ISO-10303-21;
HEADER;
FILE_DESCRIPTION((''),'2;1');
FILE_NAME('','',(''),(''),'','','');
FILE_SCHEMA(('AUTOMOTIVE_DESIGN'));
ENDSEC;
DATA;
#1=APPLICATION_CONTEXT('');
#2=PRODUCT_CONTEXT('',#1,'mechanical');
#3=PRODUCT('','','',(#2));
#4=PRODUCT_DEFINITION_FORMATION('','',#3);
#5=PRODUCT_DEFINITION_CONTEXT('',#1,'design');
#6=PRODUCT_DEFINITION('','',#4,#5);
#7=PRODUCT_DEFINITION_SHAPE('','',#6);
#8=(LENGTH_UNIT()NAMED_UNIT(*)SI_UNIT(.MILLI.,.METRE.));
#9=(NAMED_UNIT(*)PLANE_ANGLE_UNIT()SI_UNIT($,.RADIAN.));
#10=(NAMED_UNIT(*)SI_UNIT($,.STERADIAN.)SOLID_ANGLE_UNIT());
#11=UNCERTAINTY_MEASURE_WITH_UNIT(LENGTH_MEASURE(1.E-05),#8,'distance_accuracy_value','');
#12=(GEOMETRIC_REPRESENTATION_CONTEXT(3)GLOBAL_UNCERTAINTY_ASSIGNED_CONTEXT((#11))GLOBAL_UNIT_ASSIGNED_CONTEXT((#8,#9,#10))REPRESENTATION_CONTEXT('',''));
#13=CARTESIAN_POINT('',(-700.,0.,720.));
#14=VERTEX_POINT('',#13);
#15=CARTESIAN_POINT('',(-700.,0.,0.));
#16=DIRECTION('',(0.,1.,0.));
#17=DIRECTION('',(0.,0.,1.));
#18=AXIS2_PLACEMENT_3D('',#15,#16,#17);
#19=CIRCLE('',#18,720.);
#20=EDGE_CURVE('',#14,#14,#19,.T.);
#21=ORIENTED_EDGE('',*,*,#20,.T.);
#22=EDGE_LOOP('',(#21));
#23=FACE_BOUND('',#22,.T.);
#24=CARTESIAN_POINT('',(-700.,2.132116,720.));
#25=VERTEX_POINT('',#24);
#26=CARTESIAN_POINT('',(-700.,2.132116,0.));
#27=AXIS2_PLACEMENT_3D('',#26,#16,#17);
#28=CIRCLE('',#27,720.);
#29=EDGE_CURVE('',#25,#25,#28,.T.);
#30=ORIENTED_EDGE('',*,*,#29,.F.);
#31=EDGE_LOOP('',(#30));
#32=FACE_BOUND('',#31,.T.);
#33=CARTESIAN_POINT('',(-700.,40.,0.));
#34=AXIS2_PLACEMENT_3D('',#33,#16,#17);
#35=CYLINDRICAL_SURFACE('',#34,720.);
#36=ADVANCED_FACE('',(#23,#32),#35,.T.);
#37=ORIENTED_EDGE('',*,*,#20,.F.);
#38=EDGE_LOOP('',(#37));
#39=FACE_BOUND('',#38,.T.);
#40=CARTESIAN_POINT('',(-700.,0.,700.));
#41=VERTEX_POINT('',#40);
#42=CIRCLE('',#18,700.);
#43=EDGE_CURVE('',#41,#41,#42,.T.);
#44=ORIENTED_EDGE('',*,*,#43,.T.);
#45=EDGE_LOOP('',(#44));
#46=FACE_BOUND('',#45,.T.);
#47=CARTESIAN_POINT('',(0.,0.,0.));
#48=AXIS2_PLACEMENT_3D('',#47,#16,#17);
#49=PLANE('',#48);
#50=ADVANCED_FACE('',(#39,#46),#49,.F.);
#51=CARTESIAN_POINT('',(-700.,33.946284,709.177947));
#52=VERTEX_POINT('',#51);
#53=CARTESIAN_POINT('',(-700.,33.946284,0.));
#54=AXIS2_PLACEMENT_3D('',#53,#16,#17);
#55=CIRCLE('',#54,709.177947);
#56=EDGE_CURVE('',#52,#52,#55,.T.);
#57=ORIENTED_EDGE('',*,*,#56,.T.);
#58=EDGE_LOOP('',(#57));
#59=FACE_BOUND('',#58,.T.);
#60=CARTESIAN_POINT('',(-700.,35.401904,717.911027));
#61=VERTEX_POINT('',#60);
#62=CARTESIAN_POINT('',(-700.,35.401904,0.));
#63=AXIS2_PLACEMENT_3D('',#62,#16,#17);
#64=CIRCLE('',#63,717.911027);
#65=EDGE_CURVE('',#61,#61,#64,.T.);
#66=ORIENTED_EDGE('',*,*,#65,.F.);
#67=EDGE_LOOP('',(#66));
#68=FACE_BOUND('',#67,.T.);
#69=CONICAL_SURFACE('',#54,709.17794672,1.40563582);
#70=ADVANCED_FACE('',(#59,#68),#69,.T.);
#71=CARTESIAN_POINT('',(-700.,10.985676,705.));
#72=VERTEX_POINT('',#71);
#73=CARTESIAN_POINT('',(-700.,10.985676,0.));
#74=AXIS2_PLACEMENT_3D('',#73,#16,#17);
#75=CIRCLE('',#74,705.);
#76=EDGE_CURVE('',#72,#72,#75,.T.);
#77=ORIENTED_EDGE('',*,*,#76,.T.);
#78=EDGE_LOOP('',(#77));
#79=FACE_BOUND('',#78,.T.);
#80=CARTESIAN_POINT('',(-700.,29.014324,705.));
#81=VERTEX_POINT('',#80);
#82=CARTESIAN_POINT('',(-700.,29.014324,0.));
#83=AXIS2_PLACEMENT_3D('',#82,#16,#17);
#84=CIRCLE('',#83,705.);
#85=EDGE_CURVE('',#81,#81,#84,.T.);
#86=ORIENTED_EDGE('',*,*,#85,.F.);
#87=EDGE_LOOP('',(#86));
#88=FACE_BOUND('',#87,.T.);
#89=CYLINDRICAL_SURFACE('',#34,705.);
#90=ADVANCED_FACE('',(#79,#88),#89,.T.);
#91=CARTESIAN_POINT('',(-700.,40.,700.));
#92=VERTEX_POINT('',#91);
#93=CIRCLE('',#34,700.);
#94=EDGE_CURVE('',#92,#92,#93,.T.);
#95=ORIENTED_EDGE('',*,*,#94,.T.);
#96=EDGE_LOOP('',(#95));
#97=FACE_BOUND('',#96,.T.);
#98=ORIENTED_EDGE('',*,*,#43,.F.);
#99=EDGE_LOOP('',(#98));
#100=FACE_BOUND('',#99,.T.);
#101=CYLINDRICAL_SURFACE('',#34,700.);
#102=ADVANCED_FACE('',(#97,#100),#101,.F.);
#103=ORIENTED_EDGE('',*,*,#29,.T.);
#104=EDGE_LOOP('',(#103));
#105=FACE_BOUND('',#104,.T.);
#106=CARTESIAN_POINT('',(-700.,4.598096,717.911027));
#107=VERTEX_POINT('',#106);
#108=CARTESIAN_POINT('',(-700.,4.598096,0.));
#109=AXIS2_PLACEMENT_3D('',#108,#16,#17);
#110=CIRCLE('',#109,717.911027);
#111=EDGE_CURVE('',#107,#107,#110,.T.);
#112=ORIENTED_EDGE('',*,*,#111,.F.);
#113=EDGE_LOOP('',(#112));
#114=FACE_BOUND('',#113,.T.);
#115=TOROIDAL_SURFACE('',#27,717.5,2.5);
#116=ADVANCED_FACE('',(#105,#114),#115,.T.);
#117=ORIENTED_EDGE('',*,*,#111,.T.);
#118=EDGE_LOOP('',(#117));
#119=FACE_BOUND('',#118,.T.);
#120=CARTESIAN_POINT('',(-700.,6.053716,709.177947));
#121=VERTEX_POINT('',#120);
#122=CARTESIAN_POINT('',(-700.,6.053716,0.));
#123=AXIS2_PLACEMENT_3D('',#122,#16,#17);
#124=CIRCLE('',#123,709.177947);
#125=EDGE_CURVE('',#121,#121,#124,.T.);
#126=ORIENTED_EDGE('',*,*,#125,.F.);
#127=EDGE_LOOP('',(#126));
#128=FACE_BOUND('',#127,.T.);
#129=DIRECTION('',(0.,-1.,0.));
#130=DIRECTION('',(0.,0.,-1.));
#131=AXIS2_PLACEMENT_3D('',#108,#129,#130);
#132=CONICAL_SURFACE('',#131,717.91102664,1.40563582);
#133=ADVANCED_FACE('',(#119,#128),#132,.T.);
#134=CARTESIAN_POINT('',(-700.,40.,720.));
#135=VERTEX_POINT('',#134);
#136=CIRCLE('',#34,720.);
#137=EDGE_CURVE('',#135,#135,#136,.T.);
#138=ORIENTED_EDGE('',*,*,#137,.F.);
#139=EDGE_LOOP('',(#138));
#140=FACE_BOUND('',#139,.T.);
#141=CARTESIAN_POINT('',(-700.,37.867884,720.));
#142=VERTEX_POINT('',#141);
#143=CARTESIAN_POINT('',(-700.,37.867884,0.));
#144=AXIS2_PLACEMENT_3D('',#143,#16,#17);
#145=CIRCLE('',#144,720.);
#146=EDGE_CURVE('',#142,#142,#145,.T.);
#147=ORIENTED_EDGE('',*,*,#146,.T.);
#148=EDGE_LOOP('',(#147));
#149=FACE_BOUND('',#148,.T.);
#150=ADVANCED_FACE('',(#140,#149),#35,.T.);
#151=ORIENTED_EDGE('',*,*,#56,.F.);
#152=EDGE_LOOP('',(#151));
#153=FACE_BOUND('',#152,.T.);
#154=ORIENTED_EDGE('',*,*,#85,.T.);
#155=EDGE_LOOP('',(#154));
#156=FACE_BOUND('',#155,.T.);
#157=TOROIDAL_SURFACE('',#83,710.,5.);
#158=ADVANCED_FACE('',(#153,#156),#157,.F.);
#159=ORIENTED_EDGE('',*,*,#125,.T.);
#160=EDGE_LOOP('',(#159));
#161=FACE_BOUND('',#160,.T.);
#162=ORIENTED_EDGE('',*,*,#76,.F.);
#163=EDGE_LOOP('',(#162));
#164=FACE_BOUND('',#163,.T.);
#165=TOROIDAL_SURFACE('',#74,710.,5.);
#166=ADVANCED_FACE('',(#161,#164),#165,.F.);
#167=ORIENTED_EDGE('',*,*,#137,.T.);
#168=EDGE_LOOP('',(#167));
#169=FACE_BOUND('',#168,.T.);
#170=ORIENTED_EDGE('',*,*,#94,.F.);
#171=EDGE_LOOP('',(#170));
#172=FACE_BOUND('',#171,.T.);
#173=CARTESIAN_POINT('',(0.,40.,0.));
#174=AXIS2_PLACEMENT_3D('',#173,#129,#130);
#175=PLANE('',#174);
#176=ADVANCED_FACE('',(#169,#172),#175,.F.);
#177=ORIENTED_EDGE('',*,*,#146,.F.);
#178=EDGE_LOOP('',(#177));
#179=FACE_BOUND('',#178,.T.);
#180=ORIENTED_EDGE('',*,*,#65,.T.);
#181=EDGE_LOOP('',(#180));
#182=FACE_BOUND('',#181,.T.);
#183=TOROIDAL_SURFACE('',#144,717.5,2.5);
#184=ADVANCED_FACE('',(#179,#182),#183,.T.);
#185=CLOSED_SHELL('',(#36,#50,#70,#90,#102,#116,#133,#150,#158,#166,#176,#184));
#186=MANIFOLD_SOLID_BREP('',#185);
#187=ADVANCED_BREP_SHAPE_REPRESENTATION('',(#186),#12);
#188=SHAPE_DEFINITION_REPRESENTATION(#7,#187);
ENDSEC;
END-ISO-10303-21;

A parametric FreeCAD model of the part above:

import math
import FreeCAD as App
import Part
import Sketcher

V = App.Vector
Q = App.Units.Quantity

doc = App.newDocument("Part")
body = doc.addObject("PartDesign::Body", "Body")

sketch1 = body.newObject("Sketcher::SketchObject", "Sketch")
sketch1.AttachmentSupport = (doc.getObject("XY_Plane"), [""])
sketch1.MapMode = "FlatFace"
sketch1.addGeometry([
    Part.LineSegment(V(0, 40, 0), V(0, 0, 0)),
    Part.LineSegment(V(0, 0, 0), V(20, 0, 0)),
    Part.LineSegment(V(20, 0, 0), V(20, 2.1, 0)),
    Part.ArcOfCircle(Part.Circle(V(17.5, 2.1, 0), V(0, 0, 1), 2.5), math.radians(0), math.radians(81)),
    Part.LineSegment(V(17.9, 4.6, 0), V(9.2, 6.1, 0)),
    Part.ArcOfCircle(Part.Circle(V(10, 11, 0), V(0, 0, 1), 5), math.radians(-180), math.radians(-99)),
    Part.LineSegment(V(5, 11, 0), V(5, 29, 0)),
    Part.ArcOfCircle(Part.Circle(V(10, 29, 0), V(0, 0, 1), 5), math.radians(99), math.radians(180)),
    Part.LineSegment(V(9.2, 33.9, 0), V(17.9, 35.4, 0)),
    Part.ArcOfCircle(Part.Circle(V(17.5, 37.9, 0), V(0, 0, 1), 2.5), math.radians(-81), math.radians(0)),
    Part.LineSegment(V(20, 37.9, 0), V(20, 40, 0)),
    Part.LineSegment(V(20, 40, 0), V(0, 40, 0)),
], False)
sketch1.addGeometry(Part.LineSegment(V(-700, 40, 0), V(-700, 0, 0)), True)
sketch1.addConstraint([
    Sketcher.Constraint("Coincident", 0, 2, 1, 1),
    Sketcher.Constraint("Coincident", 1, 2, 2, 1),
    Sketcher.Constraint("Tangent", 2, 2, 3, 1),
    Sketcher.Constraint("Tangent", 3, 2, 4, 1),
    Sketcher.Constraint("Tangent", 4, 2, 5, 2),
    Sketcher.Constraint("Tangent", 5, 1, 6, 1),
    Sketcher.Constraint("Tangent", 6, 2, 7, 2),
    Sketcher.Constraint("Tangent", 7, 1, 8, 1),
    Sketcher.Constraint("Tangent", 8, 2, 9, 1),
    Sketcher.Constraint("Tangent", 9, 2, 10, 1),
    Sketcher.Constraint("Coincident", 10, 2, 11, 1),
    Sketcher.Constraint("Coincident", 11, 2, 0, 1),
    Sketcher.Constraint("Vertical", 0),
    Sketcher.Constraint("Horizontal", 1),
    Sketcher.Constraint("Vertical", 2),
    Sketcher.Constraint("Vertical", 6),
    Sketcher.Constraint("Vertical", 10),
    Sketcher.Constraint("Horizontal", 11),
    Sketcher.Constraint("Vertical", 12),
    Sketcher.Constraint("Coincident", 0, 2, -1, 1),
    Sketcher.Constraint("Equal", 5, 7),
    Sketcher.Constraint("Equal", 3, 9),
    Sketcher.Constraint("PointOnObject", 12, 2, -1),
    Sketcher.Constraint("Horizontal", 11, 2, 12, 1),
    Sketcher.Constraint("Vertical", 3, 3, 9, 3),
    Sketcher.Constraint("Vertical", 4, 2, 7, 1),
    Sketcher.Constraint("Equal", 2, 10),
    Sketcher.Constraint("Radius", 5, Q("5 mm")),
    Sketcher.Constraint("Radius", 3, Q("2.5 mm")),
    Sketcher.Constraint("DistanceX", 1, 1, 1, 2, Q("20 mm")),
    Sketcher.Constraint("DistanceY", 0, 2, 0, 1, Q("40 mm")),
    Sketcher.Constraint("DistanceX", -1, 1, 5, 3, Q("10 mm")),
    Sketcher.Constraint("DistanceX", 12, 1, -1, 1, Q("700 mm")),
    Sketcher.Constraint("DistanceY", 6, 1, 6, 2, Q("18.028648 mm")),
    Sketcher.Constraint("DistanceY", 3, 3, 4, 2, Q("3.921599 mm")),
])
revolution = body.newObject("PartDesign::Revolution", "Revolution")
revolution.Profile = sketch1
revolution.ReferenceAxis = (sketch1, ["Axis0"])
revolution.Angle = 360

doc.recompute()
